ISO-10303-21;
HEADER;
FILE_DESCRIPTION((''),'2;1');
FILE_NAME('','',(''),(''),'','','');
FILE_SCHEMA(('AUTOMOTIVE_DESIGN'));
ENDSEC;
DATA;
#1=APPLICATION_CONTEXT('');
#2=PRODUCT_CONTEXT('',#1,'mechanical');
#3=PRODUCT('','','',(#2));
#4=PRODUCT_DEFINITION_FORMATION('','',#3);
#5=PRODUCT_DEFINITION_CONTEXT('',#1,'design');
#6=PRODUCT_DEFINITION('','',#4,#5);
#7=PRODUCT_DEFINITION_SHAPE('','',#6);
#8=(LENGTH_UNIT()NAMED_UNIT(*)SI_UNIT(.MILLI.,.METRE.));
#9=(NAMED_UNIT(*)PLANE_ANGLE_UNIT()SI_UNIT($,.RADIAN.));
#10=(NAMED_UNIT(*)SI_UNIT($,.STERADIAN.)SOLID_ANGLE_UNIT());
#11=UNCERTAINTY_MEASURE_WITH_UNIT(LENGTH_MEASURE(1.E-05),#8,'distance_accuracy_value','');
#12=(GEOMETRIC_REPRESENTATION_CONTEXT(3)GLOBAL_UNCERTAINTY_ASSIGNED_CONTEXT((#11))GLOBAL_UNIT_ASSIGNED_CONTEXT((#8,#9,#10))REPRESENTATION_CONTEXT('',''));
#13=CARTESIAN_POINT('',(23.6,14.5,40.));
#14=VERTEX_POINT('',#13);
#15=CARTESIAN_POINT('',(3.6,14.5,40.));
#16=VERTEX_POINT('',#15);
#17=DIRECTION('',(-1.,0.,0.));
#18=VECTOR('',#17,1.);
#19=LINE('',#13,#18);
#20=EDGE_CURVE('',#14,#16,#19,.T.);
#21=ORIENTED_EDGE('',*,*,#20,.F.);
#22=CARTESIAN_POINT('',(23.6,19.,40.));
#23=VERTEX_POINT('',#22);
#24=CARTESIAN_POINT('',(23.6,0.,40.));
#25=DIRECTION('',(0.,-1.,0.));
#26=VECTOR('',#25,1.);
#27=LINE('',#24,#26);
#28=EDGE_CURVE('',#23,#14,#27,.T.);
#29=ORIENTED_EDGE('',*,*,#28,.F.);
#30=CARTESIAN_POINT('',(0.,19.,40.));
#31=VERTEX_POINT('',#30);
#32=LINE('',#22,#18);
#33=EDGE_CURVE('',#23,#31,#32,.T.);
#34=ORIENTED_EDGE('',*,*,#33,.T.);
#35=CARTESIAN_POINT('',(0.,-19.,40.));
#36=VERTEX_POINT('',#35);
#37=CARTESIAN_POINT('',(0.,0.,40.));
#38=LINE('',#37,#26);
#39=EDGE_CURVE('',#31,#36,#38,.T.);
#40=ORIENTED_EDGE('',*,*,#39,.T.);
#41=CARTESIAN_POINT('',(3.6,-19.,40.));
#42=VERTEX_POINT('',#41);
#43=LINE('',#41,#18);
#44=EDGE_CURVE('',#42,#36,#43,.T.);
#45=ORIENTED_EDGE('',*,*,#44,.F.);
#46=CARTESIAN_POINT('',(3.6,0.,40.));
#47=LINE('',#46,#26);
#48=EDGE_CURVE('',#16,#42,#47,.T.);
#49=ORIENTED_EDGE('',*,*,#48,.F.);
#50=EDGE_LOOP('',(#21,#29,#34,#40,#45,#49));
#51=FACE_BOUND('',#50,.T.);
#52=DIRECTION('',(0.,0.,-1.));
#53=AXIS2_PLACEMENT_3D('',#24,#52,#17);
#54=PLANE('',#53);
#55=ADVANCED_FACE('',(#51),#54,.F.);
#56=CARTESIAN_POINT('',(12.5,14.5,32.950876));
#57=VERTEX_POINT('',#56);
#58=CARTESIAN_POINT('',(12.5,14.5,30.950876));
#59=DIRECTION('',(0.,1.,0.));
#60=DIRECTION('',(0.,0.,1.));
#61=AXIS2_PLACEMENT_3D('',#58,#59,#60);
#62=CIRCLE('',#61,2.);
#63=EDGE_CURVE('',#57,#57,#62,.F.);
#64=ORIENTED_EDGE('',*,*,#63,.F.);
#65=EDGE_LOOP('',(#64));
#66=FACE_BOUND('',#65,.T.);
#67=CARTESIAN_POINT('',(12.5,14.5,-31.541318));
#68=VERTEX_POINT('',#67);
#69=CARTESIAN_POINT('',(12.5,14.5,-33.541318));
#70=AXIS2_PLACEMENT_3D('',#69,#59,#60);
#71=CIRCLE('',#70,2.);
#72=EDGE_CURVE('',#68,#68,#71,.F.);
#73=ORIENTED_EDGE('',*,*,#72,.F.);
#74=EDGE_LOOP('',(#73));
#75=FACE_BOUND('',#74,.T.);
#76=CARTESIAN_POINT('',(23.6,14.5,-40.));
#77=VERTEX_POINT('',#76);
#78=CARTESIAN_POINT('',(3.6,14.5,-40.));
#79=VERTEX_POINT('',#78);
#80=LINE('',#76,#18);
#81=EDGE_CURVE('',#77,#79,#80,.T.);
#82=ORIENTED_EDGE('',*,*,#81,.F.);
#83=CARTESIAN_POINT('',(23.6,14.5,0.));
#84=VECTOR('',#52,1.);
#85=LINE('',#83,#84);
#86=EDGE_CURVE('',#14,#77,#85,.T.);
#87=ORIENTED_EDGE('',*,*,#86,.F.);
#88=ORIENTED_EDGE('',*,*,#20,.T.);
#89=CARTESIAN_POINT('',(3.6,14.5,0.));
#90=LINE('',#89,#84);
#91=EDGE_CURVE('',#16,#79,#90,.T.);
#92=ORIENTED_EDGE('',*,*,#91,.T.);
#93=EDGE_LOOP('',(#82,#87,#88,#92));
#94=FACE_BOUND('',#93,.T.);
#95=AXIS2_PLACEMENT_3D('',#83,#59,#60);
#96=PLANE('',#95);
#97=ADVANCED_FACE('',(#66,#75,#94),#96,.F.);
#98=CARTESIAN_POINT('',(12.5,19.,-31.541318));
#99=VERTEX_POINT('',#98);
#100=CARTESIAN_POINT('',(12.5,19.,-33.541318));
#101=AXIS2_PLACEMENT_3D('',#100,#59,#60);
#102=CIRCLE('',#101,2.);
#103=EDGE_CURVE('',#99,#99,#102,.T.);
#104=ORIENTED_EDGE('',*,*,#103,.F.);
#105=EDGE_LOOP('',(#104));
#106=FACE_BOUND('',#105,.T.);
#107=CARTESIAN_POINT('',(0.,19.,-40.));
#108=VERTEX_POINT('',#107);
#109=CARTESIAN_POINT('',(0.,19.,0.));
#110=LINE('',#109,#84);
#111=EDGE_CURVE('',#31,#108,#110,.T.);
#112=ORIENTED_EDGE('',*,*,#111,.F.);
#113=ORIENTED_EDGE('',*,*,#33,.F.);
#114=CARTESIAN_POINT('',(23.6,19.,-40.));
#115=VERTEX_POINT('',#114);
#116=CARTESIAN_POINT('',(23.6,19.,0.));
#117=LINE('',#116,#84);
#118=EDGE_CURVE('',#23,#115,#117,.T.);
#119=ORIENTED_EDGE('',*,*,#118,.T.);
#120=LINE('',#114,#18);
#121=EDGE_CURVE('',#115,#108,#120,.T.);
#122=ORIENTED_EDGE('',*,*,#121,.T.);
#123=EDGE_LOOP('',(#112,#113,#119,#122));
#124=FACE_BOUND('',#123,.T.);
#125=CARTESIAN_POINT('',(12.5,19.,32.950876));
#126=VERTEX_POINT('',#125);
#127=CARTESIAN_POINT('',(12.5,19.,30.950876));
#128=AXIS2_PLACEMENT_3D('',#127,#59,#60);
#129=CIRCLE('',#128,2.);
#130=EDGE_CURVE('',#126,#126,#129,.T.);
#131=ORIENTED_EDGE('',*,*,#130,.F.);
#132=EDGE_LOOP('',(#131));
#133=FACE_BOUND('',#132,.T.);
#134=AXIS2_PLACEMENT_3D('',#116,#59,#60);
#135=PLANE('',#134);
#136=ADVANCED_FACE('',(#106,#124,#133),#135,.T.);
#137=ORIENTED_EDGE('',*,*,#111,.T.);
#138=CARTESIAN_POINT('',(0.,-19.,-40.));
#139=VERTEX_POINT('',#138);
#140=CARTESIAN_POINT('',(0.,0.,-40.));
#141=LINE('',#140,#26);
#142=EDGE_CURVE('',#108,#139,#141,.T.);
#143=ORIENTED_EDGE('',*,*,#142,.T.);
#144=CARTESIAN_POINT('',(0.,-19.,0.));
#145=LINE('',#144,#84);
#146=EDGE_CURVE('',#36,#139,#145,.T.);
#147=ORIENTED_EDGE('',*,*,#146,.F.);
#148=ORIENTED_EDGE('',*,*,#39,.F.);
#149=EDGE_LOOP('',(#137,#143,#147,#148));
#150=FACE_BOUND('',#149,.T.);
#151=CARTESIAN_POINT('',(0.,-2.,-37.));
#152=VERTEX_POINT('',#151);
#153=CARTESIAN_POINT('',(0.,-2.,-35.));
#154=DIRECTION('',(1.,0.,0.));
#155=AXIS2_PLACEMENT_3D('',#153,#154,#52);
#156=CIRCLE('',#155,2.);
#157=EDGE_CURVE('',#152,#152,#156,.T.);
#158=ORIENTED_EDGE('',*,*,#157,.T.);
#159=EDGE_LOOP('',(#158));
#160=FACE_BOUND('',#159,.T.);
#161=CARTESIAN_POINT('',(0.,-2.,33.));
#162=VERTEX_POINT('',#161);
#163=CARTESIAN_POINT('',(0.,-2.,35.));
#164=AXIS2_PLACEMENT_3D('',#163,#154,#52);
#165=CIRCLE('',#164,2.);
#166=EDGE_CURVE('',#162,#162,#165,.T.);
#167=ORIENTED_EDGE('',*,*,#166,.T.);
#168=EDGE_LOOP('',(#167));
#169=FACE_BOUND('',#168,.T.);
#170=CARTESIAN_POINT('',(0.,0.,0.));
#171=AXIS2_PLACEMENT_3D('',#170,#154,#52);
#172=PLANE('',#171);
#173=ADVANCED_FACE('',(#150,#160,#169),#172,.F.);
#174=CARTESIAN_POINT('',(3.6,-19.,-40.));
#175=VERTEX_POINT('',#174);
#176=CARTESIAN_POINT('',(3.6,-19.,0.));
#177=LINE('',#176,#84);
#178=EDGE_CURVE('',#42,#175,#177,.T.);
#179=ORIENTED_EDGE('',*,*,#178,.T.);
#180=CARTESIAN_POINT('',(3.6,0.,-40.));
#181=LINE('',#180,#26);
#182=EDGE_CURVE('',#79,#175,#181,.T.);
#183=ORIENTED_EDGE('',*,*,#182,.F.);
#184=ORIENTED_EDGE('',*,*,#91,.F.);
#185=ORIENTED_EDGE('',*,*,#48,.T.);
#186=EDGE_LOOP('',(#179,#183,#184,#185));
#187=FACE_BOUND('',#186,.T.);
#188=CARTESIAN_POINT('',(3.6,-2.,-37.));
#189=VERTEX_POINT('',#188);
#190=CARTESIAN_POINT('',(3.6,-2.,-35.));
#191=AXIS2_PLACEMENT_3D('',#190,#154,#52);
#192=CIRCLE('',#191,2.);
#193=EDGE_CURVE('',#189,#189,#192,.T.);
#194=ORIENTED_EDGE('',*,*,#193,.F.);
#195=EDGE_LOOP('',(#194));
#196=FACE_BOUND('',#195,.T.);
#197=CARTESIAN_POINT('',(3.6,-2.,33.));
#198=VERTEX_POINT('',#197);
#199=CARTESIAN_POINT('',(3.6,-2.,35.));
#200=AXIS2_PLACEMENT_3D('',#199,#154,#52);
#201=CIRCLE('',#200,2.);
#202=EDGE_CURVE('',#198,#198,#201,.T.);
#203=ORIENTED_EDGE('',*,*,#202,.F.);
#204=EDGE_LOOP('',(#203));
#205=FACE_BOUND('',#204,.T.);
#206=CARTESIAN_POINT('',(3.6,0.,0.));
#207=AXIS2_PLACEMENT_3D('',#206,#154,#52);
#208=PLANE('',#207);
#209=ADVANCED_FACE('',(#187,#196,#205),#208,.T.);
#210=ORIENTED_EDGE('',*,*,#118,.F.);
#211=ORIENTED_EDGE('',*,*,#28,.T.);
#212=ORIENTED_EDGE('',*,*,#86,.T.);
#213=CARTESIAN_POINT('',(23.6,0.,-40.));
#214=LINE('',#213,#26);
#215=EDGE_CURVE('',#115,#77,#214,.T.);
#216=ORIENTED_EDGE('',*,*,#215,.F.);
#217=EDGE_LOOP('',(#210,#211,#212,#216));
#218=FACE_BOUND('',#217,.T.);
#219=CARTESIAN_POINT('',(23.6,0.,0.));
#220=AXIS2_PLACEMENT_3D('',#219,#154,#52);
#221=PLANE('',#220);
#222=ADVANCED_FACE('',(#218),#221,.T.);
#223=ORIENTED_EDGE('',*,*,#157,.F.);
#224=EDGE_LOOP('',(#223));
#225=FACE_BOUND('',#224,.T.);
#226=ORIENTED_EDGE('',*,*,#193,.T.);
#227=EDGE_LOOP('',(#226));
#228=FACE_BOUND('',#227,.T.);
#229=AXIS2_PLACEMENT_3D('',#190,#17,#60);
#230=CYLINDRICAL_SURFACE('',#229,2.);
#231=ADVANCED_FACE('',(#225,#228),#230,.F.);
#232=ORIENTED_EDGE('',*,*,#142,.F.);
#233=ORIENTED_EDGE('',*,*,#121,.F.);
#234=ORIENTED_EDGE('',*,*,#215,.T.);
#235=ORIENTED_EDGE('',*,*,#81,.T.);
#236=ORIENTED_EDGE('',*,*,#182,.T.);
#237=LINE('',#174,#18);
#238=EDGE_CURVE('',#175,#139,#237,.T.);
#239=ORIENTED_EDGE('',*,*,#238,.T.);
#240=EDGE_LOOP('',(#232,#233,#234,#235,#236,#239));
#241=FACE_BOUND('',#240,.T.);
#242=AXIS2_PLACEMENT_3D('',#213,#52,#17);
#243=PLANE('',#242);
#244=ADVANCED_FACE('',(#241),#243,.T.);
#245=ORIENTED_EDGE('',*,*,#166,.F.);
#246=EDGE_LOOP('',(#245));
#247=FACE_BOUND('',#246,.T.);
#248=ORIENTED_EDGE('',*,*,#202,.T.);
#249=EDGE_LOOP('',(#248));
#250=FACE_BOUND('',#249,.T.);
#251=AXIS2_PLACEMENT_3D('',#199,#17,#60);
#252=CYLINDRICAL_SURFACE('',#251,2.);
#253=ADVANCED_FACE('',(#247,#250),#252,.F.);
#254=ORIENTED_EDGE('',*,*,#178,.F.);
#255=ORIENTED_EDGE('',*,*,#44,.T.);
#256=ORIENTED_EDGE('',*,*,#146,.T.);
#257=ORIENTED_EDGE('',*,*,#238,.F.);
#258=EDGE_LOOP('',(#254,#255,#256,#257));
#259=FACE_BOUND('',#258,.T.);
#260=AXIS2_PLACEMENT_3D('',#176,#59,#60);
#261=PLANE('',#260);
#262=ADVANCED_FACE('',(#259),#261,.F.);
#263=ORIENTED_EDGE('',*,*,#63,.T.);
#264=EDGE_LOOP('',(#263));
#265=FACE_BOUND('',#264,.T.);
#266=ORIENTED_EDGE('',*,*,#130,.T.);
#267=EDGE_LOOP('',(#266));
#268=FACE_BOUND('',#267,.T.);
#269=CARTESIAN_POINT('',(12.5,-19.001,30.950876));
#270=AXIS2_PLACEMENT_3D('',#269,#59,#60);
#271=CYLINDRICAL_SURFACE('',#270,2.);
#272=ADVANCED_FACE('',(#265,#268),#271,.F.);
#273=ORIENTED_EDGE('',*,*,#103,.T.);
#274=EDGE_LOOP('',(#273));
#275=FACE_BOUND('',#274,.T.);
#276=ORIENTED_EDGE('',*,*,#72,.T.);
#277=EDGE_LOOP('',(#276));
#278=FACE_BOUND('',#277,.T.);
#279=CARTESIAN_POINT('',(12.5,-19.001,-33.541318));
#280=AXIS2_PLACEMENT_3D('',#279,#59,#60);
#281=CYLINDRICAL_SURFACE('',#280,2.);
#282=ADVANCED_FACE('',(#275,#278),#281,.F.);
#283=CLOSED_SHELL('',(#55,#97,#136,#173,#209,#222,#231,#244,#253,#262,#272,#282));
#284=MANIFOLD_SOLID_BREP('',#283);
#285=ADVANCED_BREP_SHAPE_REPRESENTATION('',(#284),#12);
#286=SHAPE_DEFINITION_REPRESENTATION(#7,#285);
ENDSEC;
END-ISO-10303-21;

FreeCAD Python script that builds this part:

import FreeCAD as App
import Part
import Sketcher
from FreeCAD import Vector
Q = App.Units.Quantity

doc = App.newDocument("Part")
body = doc.addObject("PartDesign::Body", "Body")

# Sketch on YZ plane
sketch1 = doc.addObject("Sketcher::SketchObject", "Sketch")
body.addObject(sketch1)
sketch1.AttachmentSupport = (doc.YZ_Plane, [""])
sketch1.MapMode = "FlatFace"
sketch1.addGeometry([
    Part.LineSegment(Vector(19, 40, 0), Vector(14.5, 40, 0)),
    Part.LineSegment(Vector(14.5, 40, 0), Vector(14.5, -40, 0)),
    Part.LineSegment(Vector(14.5, -40, 0), Vector(19, -40, 0)),
    Part.LineSegment(Vector(19, -40, 0), Vector(19, 40, 0)),
], False)
sketch1.addConstraint([
    Sketcher.Constraint("Coincident", 0, 2, 1, 1),
    Sketcher.Constraint("Coincident", 1, 2, 2, 1),
    Sketcher.Constraint("Coincident", 2, 2, 3, 1),
    Sketcher.Constraint("Coincident", 3, 2, 0, 1),
    Sketcher.Constraint("Horizontal", 0),
    Sketcher.Constraint("Vertical", 1),
    Sketcher.Constraint("Horizontal", 2),
    Sketcher.Constraint("Vertical", 3),
    Sketcher.Constraint("DistanceY", 1, 2, 1, 1, Q("80 mm")),
    Sketcher.Constraint("DistanceX", 0, 2, 0, 1, Q("4.5 mm")),
    Sketcher.Constraint("DistanceY", -1, 1, 0, 2, Q("40 mm")),
    Sketcher.Constraint("DistanceX", -1, 1, 2, 2, Q("19 mm")),
])
pad1 = doc.addObject("PartDesign::Pad", "Pad")
body.addObject(pad1)
pad1.Profile = sketch1
pad1.Length = 23.6

# Sketch on YZ plane
sketch2 = doc.addObject("Sketcher::SketchObject", "Sketch001")
body.addObject(sketch2)
sketch2.AttachmentSupport = (doc.YZ_Plane, [""])
sketch2.MapMode = "FlatFace"
sketch2.addGeometry([
    Part.LineSegment(Vector(14.5, 40, 0), Vector(-19, 40, 0)),  # 0
    Part.LineSegment(Vector(-19, 40, 0), Vector(-19, -40, 0)),  # 1
    Part.LineSegment(Vector(-19, -40, 0), Vector(14.5, -40, 0)),  # 2
    Part.LineSegment(Vector(14.5, -40, 0), Vector(14.5, 40, 0)),  # 3
    Part.Circle(Vector(-2, 35, 0), Vector(0, 0, 1), 2),  # 4
    Part.Circle(Vector(-2, -35, 0), Vector(0, 0, 1), 2),  # 5
], False)
sketch2.addConstraint([
    Sketcher.Constraint("Coincident", 0, 2, 1, 1),
    Sketcher.Constraint("Coincident", 1, 2, 2, 1),
    Sketcher.Constraint("Coincident", 2, 2, 3, 1),
    Sketcher.Constraint("Coincident", 3, 2, 0, 1),
    Sketcher.Constraint("Horizontal", 0),
    Sketcher.Constraint("Vertical", 1),
    Sketcher.Constraint("Horizontal", 2),
    Sketcher.Constraint("Vertical", 3),
    Sketcher.Constraint("Equal", 4, 5),
    Sketcher.Constraint("Symmetric", 4, 3, 5, 3, -1),
    Sketcher.Constraint("Diameter", 4, Q("4 mm")),
    Sketcher.Constraint("DistanceY", 1, 2, 1, 1, Q("80 mm")),
    Sketcher.Constraint("DistanceX", 0, 2, 0, 1, Q("33.5 mm")),
    Sketcher.Constraint("DistanceX", 4, 3, -1, 1, Q("2 mm")),
    Sketcher.Constraint("DistanceY", -1, 1, 4, 3, Q("35 mm")),
    Sketcher.Constraint("DistanceX", 0, 2, -1, 1, Q("19 mm")),
    Sketcher.Constraint("DistanceY", -1, 1, 0, 2, Q("40 mm")),
])
pad2 = doc.addObject("PartDesign::Pad", "Pad001")
body.addObject(pad2)
pad2.Profile = sketch2
pad2.Length = 3.6

# Sketch on XZ plane
sketch3 = doc.addObject("Sketcher::SketchObject", "Sketch002")
body.addObject(sketch3)
sketch3.AttachmentSupport = (doc.XZ_Plane, [""])
sketch3.MapMode = "FlatFace"
sketch3.AttachmentOffset = App.Placement(Vector(0, 0, -19), App.Rotation())
sketch3.addGeometry(Part.Circle(Vector(12.5, 31, 0), Vector(0, 0, 1), 2), False)
sketch3.addConstraint([
    Sketcher.Constraint("Diameter", 0, Q("4 mm")),
    Sketcher.Constraint("DistanceX", -1, 1, 0, 3, Q("12.5 mm")),
    Sketcher.Constraint("DistanceY", -1, 1, 0, 3, Q("30.950876 mm")),
])
pocket1 = doc.addObject("PartDesign::Pocket", "Pocket")
body.addObject(pocket1)
pocket1.Profile = sketch3
pocket1.Type = "UpToFirst"
pocket1.Reversed = True

# Sketch on XZ plane
sketch4 = doc.addObject("Sketcher::SketchObject", "Sketch003")
body.addObject(sketch4)
sketch4.AttachmentSupport = (doc.XZ_Plane, [""])
sketch4.MapMode = "FlatFace"
sketch4.AttachmentOffset = App.Placement(Vector(0, 0, -19), App.Rotation())
sketch4.addGeometry(Part.Circle(Vector(12.5, -33.5, 0), Vector(0, 0, 1), 2), False)
sketch4.addConstraint([
    Sketcher.Constraint("Diameter", 0, Q("4 mm")),
    Sketcher.Constraint("DistanceX", -1, 1, 0, 3, Q("12.5 mm")),
    Sketcher.Constraint("DistanceY", 0, 3, -1, 1, Q("33.541318 mm")),
])
pocket2 = doc.addObject("PartDesign::Pocket", "Pocket001")
body.addObject(pocket2)
pocket2.Profile = sketch4
pocket2.Type = "UpToFirst"
pocket2.Reversed = True

doc.recompute()
